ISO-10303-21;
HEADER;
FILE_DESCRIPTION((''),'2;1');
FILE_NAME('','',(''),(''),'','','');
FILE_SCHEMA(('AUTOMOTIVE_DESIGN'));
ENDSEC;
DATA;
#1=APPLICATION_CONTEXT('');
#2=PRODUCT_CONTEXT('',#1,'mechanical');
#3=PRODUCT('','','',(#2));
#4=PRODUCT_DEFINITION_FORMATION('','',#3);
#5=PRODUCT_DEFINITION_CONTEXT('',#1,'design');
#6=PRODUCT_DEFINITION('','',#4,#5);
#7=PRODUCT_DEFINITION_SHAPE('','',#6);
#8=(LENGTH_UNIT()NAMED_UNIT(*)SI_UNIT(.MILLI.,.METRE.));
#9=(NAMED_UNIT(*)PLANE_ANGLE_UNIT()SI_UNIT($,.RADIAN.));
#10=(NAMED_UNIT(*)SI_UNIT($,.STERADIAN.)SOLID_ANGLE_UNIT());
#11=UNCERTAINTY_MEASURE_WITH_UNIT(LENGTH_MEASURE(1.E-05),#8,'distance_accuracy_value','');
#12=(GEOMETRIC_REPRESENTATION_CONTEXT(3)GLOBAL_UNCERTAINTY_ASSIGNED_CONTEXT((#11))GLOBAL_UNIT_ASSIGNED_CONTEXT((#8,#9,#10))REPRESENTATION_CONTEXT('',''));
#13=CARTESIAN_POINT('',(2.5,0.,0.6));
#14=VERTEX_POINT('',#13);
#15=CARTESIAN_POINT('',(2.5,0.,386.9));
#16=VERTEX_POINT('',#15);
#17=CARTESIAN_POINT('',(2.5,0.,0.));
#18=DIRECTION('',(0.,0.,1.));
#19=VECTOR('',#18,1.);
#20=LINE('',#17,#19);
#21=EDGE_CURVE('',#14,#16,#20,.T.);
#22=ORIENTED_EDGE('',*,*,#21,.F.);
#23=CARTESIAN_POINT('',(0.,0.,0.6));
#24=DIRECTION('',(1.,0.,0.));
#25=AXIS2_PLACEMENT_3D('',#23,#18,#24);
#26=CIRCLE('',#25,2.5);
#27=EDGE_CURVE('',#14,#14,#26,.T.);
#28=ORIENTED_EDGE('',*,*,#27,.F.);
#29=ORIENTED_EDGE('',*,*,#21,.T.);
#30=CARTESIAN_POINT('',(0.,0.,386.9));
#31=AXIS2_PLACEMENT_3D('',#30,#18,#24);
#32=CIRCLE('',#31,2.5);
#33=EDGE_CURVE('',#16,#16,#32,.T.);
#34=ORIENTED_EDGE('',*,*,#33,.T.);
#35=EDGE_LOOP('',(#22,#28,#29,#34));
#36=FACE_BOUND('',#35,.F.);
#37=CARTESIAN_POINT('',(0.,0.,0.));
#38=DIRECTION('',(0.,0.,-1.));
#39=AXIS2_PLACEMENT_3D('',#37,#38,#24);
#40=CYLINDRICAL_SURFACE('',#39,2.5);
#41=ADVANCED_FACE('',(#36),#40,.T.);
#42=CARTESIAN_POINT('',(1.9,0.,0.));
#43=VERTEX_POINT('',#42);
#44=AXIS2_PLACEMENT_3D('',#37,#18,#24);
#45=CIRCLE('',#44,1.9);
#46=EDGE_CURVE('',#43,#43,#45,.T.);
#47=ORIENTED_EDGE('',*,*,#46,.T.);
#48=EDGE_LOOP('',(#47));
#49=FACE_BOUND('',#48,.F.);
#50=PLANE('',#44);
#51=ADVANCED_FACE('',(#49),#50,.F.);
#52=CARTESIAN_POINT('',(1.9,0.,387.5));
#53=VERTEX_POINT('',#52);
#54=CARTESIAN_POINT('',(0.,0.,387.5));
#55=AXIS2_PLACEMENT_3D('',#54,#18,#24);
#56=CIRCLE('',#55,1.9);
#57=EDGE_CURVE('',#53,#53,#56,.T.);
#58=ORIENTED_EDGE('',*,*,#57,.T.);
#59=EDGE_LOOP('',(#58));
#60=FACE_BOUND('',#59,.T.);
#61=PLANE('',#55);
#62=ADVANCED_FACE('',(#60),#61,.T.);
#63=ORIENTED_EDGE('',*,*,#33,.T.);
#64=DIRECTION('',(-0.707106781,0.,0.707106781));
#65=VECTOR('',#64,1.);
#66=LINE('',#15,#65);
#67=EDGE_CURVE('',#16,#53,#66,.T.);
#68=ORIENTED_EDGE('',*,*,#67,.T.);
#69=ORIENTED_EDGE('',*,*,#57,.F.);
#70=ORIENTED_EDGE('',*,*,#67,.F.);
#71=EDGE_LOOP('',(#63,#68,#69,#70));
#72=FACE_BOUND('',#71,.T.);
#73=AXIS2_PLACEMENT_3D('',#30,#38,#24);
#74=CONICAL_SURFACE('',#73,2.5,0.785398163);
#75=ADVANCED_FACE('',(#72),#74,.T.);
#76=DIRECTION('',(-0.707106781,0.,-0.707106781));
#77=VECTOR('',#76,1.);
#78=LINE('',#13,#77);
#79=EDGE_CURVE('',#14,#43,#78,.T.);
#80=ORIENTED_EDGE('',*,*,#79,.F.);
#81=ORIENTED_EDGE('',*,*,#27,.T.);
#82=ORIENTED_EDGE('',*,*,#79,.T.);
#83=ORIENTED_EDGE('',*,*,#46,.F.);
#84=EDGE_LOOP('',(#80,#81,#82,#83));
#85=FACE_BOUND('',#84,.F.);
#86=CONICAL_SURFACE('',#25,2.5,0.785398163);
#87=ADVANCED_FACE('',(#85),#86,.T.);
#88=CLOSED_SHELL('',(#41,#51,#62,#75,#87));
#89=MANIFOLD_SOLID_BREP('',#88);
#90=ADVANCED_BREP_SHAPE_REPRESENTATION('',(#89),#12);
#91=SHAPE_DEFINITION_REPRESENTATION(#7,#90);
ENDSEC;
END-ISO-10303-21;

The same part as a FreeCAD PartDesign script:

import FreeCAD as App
import Part
import Sketcher
from FreeCAD import Vector


def edges_at(feature, points):
    """Names of the edges that pass closest to the given points."""
    edges = feature.Shape.Edges
    near = lambda p: min(range(len(edges)), key=lambda i: edges[i].distToShape(Part.Vertex(*p))[0])
    return sorted({f"Edge{near(p) + 1}" for p in points})

doc = App.newDocument("Part")
body = doc.addObject("PartDesign::Body", "Body")

# Sketch on XY plane
sketch1 = body.newObject("Sketcher::SketchObject", "Sketch")
sketch1.AttachmentSupport = (doc.getObject("XY_Plane"), [""])
sketch1.MapMode = "FlatFace"
sketch1.addGeometry(Part.Circle(Vector(0, 0, 0), Vector(0, 0, 1), 2.5), False)
sketch1.addConstraint([
    Sketcher.Constraint("Coincident", 0, 3, -1, 1),
    Sketcher.Constraint("Diameter", 0, 5.0),
])
pad1 = body.newObject("PartDesign::Pad", "Pad")
pad1.Profile = sketch1
pad1.Length = 387.5
doc.recompute()

chamfer = body.newObject("PartDesign::Chamfer", "Chamfer")
chamfer.Base = (pad1, edges_at(pad1, [(-2.5, 0, 387.5), (-2.5, 0, 0)]))
chamfer.Size = 0.6

doc.recompute()
